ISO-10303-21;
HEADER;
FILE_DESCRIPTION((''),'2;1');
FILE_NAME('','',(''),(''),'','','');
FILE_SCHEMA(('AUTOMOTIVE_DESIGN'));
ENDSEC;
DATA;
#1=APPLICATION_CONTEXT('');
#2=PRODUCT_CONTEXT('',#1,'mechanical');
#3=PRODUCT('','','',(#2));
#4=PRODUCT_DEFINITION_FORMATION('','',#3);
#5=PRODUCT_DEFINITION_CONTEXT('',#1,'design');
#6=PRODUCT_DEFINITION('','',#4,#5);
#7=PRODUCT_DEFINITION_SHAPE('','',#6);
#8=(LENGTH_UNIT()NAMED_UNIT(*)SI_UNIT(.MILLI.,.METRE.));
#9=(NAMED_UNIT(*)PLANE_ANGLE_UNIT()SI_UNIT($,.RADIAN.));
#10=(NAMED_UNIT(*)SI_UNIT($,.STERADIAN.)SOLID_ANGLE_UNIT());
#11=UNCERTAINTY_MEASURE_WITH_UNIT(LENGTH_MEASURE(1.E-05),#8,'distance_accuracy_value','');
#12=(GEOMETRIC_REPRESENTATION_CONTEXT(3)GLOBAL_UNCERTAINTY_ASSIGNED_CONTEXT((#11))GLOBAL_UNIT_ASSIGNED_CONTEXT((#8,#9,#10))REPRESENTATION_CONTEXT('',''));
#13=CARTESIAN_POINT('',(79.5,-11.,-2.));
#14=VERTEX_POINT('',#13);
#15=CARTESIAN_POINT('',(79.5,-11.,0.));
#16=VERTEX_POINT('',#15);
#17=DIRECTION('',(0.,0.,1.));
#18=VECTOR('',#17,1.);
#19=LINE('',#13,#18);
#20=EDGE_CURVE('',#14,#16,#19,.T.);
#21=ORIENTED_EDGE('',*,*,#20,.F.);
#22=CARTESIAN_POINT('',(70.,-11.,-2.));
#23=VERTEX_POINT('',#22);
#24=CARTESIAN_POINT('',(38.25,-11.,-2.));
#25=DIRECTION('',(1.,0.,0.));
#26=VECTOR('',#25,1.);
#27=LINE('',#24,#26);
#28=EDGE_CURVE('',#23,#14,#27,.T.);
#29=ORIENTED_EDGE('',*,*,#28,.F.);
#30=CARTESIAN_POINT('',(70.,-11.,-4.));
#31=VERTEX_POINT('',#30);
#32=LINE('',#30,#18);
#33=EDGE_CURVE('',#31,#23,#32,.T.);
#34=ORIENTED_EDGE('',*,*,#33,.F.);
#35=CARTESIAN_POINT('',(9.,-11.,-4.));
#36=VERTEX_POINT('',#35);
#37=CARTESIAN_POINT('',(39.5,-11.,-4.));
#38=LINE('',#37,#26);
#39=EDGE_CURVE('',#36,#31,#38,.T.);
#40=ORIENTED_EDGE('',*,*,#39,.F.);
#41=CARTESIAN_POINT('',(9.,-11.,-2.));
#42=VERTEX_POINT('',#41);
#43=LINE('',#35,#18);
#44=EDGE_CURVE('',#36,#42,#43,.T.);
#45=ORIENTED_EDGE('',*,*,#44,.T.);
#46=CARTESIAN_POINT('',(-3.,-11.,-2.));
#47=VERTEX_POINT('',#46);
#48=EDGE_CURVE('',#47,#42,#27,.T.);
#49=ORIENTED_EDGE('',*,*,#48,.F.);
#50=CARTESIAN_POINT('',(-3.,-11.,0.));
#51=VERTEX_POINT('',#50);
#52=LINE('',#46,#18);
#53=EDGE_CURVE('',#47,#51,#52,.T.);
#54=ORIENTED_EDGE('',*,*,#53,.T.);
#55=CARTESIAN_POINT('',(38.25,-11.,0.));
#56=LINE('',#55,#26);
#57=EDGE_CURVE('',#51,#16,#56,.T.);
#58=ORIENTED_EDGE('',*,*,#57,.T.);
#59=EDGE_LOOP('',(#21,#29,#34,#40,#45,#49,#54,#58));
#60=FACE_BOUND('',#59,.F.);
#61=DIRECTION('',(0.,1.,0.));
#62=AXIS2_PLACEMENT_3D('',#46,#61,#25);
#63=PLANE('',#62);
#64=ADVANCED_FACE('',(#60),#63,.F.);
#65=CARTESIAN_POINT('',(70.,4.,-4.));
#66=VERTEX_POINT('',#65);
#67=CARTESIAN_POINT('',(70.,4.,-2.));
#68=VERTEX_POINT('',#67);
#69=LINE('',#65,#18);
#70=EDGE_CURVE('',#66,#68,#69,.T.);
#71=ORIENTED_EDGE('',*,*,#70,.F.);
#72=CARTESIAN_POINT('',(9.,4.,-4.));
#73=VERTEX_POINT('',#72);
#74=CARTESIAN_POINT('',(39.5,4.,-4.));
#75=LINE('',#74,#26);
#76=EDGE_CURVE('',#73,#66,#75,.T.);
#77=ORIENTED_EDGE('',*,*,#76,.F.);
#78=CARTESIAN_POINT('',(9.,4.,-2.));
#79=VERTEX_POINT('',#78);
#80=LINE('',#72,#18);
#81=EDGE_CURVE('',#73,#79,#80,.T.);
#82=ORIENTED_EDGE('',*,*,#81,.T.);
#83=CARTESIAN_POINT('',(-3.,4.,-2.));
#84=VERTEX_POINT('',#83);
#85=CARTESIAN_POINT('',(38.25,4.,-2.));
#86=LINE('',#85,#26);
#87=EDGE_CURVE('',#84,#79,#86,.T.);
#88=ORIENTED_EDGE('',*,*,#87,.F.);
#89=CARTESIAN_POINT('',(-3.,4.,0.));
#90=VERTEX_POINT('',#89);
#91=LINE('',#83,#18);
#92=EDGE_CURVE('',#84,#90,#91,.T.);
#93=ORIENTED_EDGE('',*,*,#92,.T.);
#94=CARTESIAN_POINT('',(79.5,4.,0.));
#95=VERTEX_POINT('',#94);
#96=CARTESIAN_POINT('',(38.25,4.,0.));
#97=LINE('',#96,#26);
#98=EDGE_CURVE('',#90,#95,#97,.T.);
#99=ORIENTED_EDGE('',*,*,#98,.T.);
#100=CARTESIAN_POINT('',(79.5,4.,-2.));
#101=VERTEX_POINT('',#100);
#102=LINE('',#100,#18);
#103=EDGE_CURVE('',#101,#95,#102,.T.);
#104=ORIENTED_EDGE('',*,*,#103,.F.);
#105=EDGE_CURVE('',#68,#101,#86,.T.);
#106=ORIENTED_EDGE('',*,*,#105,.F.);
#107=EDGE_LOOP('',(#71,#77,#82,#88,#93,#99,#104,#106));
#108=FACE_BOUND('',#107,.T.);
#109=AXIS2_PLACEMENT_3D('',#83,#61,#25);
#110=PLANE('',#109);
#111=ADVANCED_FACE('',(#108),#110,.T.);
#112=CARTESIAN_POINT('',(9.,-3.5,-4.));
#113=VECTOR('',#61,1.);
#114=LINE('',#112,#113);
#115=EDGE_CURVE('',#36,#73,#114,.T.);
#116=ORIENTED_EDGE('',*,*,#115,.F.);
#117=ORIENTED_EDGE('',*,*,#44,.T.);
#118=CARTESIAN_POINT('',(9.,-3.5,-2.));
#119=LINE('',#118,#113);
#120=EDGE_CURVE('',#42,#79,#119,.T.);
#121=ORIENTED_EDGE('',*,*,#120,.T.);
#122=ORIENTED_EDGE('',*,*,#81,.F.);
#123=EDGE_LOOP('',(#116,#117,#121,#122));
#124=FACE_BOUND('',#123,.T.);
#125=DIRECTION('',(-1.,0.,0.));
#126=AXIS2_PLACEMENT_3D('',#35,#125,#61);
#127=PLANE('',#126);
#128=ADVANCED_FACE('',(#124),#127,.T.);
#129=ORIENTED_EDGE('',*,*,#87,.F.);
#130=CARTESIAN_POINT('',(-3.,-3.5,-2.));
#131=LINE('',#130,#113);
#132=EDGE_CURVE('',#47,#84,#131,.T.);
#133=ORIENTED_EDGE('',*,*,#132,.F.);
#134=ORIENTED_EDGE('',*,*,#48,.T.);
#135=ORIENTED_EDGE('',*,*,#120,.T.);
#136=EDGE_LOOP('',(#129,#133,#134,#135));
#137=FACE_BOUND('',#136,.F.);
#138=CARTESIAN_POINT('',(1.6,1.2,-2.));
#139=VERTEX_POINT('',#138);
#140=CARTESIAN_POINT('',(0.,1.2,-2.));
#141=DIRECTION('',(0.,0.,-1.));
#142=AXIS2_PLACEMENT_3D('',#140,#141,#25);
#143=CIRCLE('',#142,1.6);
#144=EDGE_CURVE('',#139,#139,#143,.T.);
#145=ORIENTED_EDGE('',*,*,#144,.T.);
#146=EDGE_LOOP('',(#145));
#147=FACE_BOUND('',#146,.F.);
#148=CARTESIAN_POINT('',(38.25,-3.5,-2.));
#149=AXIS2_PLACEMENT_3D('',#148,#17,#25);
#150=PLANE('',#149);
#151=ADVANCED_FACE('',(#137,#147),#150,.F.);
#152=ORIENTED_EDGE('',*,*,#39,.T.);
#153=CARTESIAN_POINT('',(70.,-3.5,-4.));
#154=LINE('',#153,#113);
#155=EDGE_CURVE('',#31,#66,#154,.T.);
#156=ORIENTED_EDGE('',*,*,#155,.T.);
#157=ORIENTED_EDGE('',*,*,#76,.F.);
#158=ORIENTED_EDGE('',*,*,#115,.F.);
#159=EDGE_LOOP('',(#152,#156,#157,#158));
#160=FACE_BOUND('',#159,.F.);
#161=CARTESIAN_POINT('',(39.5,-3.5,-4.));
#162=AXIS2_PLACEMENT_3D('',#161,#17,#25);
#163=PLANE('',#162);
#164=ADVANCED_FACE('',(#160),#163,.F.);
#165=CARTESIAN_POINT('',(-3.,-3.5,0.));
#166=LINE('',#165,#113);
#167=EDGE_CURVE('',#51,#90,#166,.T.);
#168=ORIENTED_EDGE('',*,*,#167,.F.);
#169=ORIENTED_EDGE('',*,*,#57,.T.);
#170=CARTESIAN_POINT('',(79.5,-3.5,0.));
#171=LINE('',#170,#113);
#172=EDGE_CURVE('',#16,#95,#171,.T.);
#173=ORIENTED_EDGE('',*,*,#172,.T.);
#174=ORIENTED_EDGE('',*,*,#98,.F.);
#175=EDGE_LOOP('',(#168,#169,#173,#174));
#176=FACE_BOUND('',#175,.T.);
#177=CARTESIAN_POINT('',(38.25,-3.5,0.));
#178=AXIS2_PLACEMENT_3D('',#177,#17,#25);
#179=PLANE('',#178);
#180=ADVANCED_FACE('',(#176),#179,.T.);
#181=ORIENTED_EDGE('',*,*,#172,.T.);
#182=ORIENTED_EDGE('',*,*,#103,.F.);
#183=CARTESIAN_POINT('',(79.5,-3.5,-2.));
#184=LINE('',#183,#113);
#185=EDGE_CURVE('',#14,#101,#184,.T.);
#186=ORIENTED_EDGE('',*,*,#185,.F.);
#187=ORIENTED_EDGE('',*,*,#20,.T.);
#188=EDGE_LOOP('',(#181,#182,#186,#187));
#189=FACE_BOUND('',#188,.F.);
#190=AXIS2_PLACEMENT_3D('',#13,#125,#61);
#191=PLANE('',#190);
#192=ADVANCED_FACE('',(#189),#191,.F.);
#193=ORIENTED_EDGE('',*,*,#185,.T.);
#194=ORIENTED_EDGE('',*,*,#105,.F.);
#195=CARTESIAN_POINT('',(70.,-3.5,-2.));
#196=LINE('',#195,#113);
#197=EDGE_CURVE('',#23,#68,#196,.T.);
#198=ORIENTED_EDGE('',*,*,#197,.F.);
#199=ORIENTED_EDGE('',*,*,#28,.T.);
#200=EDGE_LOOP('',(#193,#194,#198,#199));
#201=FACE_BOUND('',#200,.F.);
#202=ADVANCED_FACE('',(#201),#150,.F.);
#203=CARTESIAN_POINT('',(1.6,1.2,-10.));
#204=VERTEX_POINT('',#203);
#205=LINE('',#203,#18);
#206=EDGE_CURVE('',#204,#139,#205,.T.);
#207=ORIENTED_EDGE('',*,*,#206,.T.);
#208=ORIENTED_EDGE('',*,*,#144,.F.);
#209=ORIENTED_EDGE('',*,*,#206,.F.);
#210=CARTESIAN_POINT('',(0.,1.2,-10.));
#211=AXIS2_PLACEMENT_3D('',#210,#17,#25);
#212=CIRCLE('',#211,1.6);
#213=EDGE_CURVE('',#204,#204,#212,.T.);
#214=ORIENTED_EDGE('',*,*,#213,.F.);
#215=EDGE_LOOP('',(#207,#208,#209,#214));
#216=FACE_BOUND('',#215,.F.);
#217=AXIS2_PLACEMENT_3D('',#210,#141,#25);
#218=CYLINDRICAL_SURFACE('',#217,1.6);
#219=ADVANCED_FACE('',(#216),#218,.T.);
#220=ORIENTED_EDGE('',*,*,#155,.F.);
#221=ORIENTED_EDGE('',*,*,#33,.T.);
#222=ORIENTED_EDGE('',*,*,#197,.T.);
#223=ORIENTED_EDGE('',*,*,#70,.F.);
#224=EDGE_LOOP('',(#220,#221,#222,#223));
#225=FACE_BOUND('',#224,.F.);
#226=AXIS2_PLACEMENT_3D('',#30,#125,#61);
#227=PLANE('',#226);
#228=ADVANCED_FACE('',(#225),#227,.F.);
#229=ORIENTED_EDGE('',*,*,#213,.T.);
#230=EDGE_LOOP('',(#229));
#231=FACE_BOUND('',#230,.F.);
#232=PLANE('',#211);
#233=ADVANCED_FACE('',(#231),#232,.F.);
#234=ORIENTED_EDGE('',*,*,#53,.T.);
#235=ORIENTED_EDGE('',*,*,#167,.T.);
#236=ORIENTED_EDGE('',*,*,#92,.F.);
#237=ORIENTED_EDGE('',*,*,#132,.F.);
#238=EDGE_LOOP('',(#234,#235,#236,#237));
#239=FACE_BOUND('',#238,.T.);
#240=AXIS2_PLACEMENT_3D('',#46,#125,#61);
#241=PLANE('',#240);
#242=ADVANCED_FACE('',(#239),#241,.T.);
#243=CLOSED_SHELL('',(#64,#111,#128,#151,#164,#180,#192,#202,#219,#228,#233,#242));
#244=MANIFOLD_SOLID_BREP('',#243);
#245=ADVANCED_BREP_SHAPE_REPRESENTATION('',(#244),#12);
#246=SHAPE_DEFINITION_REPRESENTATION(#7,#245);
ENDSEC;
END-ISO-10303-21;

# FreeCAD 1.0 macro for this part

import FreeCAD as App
import Part
import Sketcher
from FreeCAD import Vector
Q = App.Units.Quantity


def add_polygon(sketch, points):
    """Adds a closed chain of lines whose ends are joined by coincident constraints."""
    first, n = sketch.GeometryCount, len(points)
    for a, b in zip(points, points[1:] + points[:1]):
        sketch.addGeometry(Part.LineSegment(App.Vector(*a, 0), App.Vector(*b, 0)), False)
    for i in range(n):
        sketch.addConstraint(Sketcher.Constraint("Coincident", first + i, 2, first + (i + 1) % n, 1))

doc = App.newDocument("Part")
params = doc.addObject("Spreadsheet::Sheet", "Params")
for row, (alias, value) in enumerate([
    ("sketch1_diameter", "3.2 mm"),
    ("pad1_length", "10 mm"),
    ("sketch2_width", "61 mm"),
    ("sketch2_height", "15 mm"),
    ("pad2_length", "2 mm"),
    ("sketch3_height", "15 mm"),
    ("sketch3_width", "82.5 mm"),
    ("pad3_length", "2 mm"),
], start=1):
    params.set(f"A{row}", alias)
    params.set(f"B{row}", "=" + value)
    params.setAlias(f"B{row}", alias)

body = doc.addObject("PartDesign::Body", "Body")

sketch1 = body.newObject("Sketcher::SketchObject", "Sketch")
sketch1.AttachmentSupport = (doc.getObject("XY_Plane"), [""])
sketch1.MapMode = "FlatFace"
sketch1.AttachmentOffset = App.Placement(Vector(0, 0, -10), App.Rotation())
sketch1.addGeometry(Part.Circle(Vector(0, 1.2, 0), Vector(0, 0, 1), 1.6), False)
sketch1.addConstraint([
    Sketcher.Constraint("PointOnObject", 0, 3, -2),
    Sketcher.Constraint("Diameter", 0, Q("3.2 mm")),
    Sketcher.Constraint("DistanceY", -1, 1, 0, 3, Q("1.2 mm")),
])
sketch1.setExpression("Constraints[1]", "Params.sketch1_diameter")
pad1 = body.newObject("PartDesign::Pad", "Pad")
pad1.Profile = sketch1
pad1.setExpression("Length", "Params.pad1_length")
body2 = doc.addObject("PartDesign::Body", "Body001")

sketch2 = body2.newObject("Sketcher::SketchObject", "Sketch001")
sketch2.AttachmentSupport = (doc.getObject("XY_Plane001"), [""])
sketch2.MapMode = "FlatFace"
sketch2.AttachmentOffset = App.Placement(Vector(0, 0, -2), App.Rotation())
add_polygon(sketch2, [(12, 15), (12, 0), (73, 0), (73, 15)])
sketch2.addConstraint([
    Sketcher.Constraint("Vertical", 0),
    Sketcher.Constraint("Horizontal", 1),
    Sketcher.Constraint("Vertical", 2),
    Sketcher.Constraint("Horizontal", 3),
    Sketcher.Constraint("PointOnObject", 0, 2, -1),
    Sketcher.Constraint("DistanceX", 1, 1, 1, 2, Q("61 mm")),
    Sketcher.Constraint("DistanceY", 0, 2, 0, 1, Q("15 mm")),
    Sketcher.Constraint("DistanceX", -1, 1, 0, 2, Q("12 mm")),
])
sketch2.setExpression("Constraints[9]", "Params.sketch2_width")
sketch2.setExpression("Constraints[10]", "Params.sketch2_height")
pad2 = body2.newObject("PartDesign::Pad", "Pad001")
pad2.Profile = sketch2
pad2.setExpression("Length", "Params.pad2_length")
body3 = doc.addObject("PartDesign::Body", "Body002")

sketch3 = body3.newObject("Sketcher::SketchObject", "Sketch002")
sketch3.AttachmentSupport = (doc.getObject("XY_Plane002"), [""])
sketch3.MapMode = "FlatFace"
add_polygon(sketch3, [(0, 15), (0, 0), (82, 0), (82, 15)])
sketch3.addConstraint([
    Sketcher.Constraint("Vertical", 0),
    Sketcher.Constraint("Horizontal", 1),
    Sketcher.Constraint("Vertical", 2),
    Sketcher.Constraint("Horizontal", 3),
    Sketcher.Constraint("Coincident", 0, 2, -1, 1),
    Sketcher.Constraint("DistanceY", 0, 2, 0, 1, Q("15 mm")),
    Sketcher.Constraint("DistanceX", 1, 1, 1, 2, Q("82.5 mm")),
])
sketch3.setExpression("Constraints[9]", "Params.sketch3_height")
sketch3.setExpression("Constraints[10]", "Params.sketch3_width")
pad3 = body3.newObject("PartDesign::Pad", "Pad002")
pad3.Profile = sketch3
pad3.setExpression("Length", "Params.pad3_length")
doc.recompute()

boolean = body3.newObject("PartDesign::Boolean", "Boolean")
boolean.Type = "Fuse"
boolean.addObjects([body2])
body4 = doc.addObject("PartDesign::Body", "Body003")
doc.recompute()

body3.Placement = App.Placement(Vector(-3, -11, -2), App.Rotation(Vector(0, 0, 1), 0))
boolean2 = body4.newObject("PartDesign::Boolean", "Boolean001")
boolean2.Type = "Fuse"
boolean2.addObjects([body3])
doc.recompute()

body5 = doc.addObject("PartDesign::Body", "Body004")
body5.BaseFeature = body
boolean3 = body4.newObject("PartDesign::Boolean", "Boolean002")
boolean3.Type = "Fuse"
boolean3.addObjects([body5])
doc.recompute()

boolean4 = body.newObject("PartDesign::Boolean", "Boolean003")
boolean4.Type = "Fuse"
boolean4.addObjects([body4])

doc.recompute()
